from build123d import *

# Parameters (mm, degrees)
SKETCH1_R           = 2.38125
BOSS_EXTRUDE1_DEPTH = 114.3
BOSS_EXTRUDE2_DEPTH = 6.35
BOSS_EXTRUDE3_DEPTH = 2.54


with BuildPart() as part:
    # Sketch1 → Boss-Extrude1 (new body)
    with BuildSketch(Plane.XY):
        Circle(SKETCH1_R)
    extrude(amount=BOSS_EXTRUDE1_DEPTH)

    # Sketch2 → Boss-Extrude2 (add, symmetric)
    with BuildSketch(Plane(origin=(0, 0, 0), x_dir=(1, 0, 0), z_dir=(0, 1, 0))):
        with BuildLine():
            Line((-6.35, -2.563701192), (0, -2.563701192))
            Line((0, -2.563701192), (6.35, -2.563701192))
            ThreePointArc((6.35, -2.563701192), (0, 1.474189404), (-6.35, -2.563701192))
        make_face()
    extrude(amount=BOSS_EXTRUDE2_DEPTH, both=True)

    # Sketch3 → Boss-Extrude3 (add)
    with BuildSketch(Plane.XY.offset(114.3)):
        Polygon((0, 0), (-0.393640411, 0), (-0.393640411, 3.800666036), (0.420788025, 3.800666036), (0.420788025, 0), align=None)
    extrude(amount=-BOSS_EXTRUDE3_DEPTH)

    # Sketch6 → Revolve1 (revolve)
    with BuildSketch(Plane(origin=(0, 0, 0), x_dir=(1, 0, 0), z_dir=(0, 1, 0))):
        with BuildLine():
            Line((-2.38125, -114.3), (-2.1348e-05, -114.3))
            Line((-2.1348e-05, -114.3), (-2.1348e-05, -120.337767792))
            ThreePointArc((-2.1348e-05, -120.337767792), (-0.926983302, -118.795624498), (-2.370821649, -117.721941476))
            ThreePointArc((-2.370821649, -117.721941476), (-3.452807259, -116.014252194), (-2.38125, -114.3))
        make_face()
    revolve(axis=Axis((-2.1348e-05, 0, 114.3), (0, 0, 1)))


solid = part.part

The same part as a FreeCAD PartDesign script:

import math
import FreeCAD as App
import Part
import Sketcher
Q = App.Units.Quantity


def add_polygon(sketch, points):
    """Adds a closed chain of lines whose ends are joined by coincident constraints."""
    first, n = sketch.GeometryCount, len(points)
    for a, b in zip(points, points[1:] + points[:1]):
        sketch.addGeometry(Part.LineSegment(App.Vector(*a, 0), App.Vector(*b, 0)), False)
    for i in range(n):
        sketch.addConstraint(Sketcher.Constraint("Coincident", first + i, 2, first + (i + 1) % n, 1))

doc = App.newDocument("Part")
params = doc.addObject("Spreadsheet::Sheet", "Params")
for row, (alias, value) in enumerate([
    ("sketch1_diameter", "0.1875 in"),
    ("pad1_length", "4.5 in"),
    ("sketch2_width", "0.5 in"),
    ("pad2_length", "0.5 in"),
    ("pad3_length", "0.1 in"),
    ("revolution_angle", "360 deg"),
], start=1):
    params.set(f"A{row}", alias)
    params.set(f"B{row}", "=" + value)
    params.setAlias(f"B{row}", alias)

body = doc.addObject("PartDesign::Body", "Body")

# Sketch on XY plane
sketch1 = doc.addObject("Sketcher::SketchObject", "Sketch")
body.addObject(sketch1)
sketch1.AttachmentSupport = (doc.XY_Plane, [""])
sketch1.MapMode = "FlatFace"
sketch1.addGeometry(Part.Circle(App.Vector(0, 0, 0), App.Vector(0, 0, 1), 2.4), False)
sketch1.addConstraint([
    Sketcher.Constraint("Coincident", 0, 3, -1, 1),
    Sketcher.Constraint("Diameter", 0, Q("0.1875 in")),
])
sketch1.setExpression("Constraints[1]", "Params.sketch1_diameter")
pad1 = doc.addObject("PartDesign::Pad", "Pad")
body.addObject(pad1)
pad1.Profile = sketch1
pad1.setExpression("Length", "Params.pad1_length")

# Sketch on XZ plane
sketch2 = doc.addObject("Sketcher::SketchObject", "Sketch001")
body.addObject(sketch2)
sketch2.AttachmentSupport = (doc.XZ_Plane, [""])
sketch2.MapMode = "FlatFace"
sketch2.addGeometry([
    Part.LineSegment(App.Vector(-6, 3, 0), App.Vector(6, 3, 0)),
    Part.ArcOfCircle(Part.Circle(App.Vector(0, 6, 0), App.Vector(0, 0, 1), 7), math.radians(-155), math.radians(-25)),
], False)
sketch2.addConstraint([
    Sketcher.Constraint("Coincident", 0, 1, 1, 1),
    Sketcher.Constraint("Coincident", 1, 2, 0, 2),
    Sketcher.Constraint("Horizontal", 0),
    Sketcher.Constraint("PointOnObject", 1, 3, -2),
    Sketcher.Constraint("DistanceX", 0, 1, 0, 2, Q("0.5 in")),
    Sketcher.Constraint("Radius", 1, 7.011961),
    Sketcher.Constraint("DistanceY", -1, 1, 0, 1, 2.563701),
])
sketch2.setExpression("Constraints[4]", "Params.sketch2_width")
pad2 = doc.addObject("PartDesign::Pad", "Pad001")
body.addObject(pad2)
pad2.Profile = sketch2
pad2.setExpression("Length", "Params.pad2_length")
pad2.Midplane = True

# Sketch on XY plane
sketch3 = doc.addObject("Sketcher::SketchObject", "Sketch002")
body.addObject(sketch3)
sketch3.AttachmentSupport = (doc.XY_Plane, [""])
sketch3.MapMode = "FlatFace"
sketch3.AttachmentOffset = App.Placement(App.Vector(0, 0, 4.5 * 25.4), App.Rotation())
add_polygon(sketch3, [(-0.4, 0), (0.4, 0), (0.4, 3.8), (-0.4, 3.8)])  # lines 0-3
sketch3.addConstraint([
    Sketcher.Constraint("Horizontal", 0),
    Sketcher.Constraint("Vertical", 1),
    Sketcher.Constraint("Horizontal", 2),
    Sketcher.Constraint("Vertical", 3),
    Sketcher.Constraint("PointOnObject", 0, 2, -1),
    Sketcher.Constraint("DistanceX", 0, 1, 0, 2, 0.814428),
    Sketcher.Constraint("DistanceY", 1, 1, 1, 2, 3.800666),
    Sketcher.Constraint("DistanceX", -1, 1, 0, 2, 0.420788),
])
pad3 = doc.addObject("PartDesign::Pad", "Pad002")
body.addObject(pad3)
pad3.Profile = sketch3
pad3.setExpression("Length", "Params.pad3_length")
pad3.Reversed = True

# Sketch on XZ plane
sketch4 = doc.addObject("Sketcher::SketchObject", "Sketch003")
body.addObject(sketch4)
sketch4.AttachmentSupport = (doc.XZ_Plane, [""])
sketch4.MapMode = "FlatFace"
sketch4.addGeometry([
    Part.LineSegment(App.Vector(0, 114.3, 0), App.Vector(-2.4, 114.3, 0)),
    Part.ArcOfCircle(Part.Circle(App.Vector(-1.6, 116, 0), App.Vector(0, 0, 1), 1.9), math.radians(115), math.radians(244)),
    Part.ArcOfCircle(Part.Circle(App.Vector(-4.4, 121.9, 0), App.Vector(0, 0, 1), 4.6), math.radians(-65), math.radians(-20)),
    Part.LineSegment(App.Vector(0, 120.3, 0), App.Vector(0, 114.3, 0)),
], False)
sketch4.addGeometry(Part.LineSegment(App.Vector(0, 114.3, 0), App.Vector(0, 121.9, 0)), True)  # axis
sketch4.addConstraint([
    Sketcher.Constraint("Coincident", 0, 2, 1, 2),
    Sketcher.Constraint("Tangent", 1, 1, 2, 1),
    Sketcher.Constraint("Coincident", 2, 2, 3, 1),
    Sketcher.Constraint("Coincident", 3, 2, 0, 1),
    Sketcher.Constraint("Horizontal", 0),
    Sketcher.Constraint("Vertical", 3),
    Sketcher.Constraint("Vertical", 4),
    Sketcher.Constraint("Coincident", 4, 1, 3, 2),
    Sketcher.Constraint("Horizontal", 2, 3, 4, 2),
    Sketcher.Constraint("DistanceY", -1, 1, 0, 2, Q("4.5 in")),
    Sketcher.Constraint("Radius", 2, 4.641001),
    Sketcher.Constraint("DistanceX", 0, 2, -1, 1, Q("0.09375 in")),
    Sketcher.Constraint("Radius", 1, 1.897746),
    Sketcher.Constraint("DistanceX", 0, 2, 0, 1, 2.381229),
    Sketcher.Constraint("DistanceX", 2, 3, 1, 3, 2.810699),
    Sketcher.Constraint("DistanceX", 1, 1, 2, 2, 2.3708),
])
revolution = doc.addObject("PartDesign::Revolution", "Revolution")
body.addObject(revolution)
revolution.Profile = sketch4
revolution.ReferenceAxis = (sketch4, ["Axis0"])
revolution.setExpression("Angle", "Params.revolution_angle")

doc.recompute()
